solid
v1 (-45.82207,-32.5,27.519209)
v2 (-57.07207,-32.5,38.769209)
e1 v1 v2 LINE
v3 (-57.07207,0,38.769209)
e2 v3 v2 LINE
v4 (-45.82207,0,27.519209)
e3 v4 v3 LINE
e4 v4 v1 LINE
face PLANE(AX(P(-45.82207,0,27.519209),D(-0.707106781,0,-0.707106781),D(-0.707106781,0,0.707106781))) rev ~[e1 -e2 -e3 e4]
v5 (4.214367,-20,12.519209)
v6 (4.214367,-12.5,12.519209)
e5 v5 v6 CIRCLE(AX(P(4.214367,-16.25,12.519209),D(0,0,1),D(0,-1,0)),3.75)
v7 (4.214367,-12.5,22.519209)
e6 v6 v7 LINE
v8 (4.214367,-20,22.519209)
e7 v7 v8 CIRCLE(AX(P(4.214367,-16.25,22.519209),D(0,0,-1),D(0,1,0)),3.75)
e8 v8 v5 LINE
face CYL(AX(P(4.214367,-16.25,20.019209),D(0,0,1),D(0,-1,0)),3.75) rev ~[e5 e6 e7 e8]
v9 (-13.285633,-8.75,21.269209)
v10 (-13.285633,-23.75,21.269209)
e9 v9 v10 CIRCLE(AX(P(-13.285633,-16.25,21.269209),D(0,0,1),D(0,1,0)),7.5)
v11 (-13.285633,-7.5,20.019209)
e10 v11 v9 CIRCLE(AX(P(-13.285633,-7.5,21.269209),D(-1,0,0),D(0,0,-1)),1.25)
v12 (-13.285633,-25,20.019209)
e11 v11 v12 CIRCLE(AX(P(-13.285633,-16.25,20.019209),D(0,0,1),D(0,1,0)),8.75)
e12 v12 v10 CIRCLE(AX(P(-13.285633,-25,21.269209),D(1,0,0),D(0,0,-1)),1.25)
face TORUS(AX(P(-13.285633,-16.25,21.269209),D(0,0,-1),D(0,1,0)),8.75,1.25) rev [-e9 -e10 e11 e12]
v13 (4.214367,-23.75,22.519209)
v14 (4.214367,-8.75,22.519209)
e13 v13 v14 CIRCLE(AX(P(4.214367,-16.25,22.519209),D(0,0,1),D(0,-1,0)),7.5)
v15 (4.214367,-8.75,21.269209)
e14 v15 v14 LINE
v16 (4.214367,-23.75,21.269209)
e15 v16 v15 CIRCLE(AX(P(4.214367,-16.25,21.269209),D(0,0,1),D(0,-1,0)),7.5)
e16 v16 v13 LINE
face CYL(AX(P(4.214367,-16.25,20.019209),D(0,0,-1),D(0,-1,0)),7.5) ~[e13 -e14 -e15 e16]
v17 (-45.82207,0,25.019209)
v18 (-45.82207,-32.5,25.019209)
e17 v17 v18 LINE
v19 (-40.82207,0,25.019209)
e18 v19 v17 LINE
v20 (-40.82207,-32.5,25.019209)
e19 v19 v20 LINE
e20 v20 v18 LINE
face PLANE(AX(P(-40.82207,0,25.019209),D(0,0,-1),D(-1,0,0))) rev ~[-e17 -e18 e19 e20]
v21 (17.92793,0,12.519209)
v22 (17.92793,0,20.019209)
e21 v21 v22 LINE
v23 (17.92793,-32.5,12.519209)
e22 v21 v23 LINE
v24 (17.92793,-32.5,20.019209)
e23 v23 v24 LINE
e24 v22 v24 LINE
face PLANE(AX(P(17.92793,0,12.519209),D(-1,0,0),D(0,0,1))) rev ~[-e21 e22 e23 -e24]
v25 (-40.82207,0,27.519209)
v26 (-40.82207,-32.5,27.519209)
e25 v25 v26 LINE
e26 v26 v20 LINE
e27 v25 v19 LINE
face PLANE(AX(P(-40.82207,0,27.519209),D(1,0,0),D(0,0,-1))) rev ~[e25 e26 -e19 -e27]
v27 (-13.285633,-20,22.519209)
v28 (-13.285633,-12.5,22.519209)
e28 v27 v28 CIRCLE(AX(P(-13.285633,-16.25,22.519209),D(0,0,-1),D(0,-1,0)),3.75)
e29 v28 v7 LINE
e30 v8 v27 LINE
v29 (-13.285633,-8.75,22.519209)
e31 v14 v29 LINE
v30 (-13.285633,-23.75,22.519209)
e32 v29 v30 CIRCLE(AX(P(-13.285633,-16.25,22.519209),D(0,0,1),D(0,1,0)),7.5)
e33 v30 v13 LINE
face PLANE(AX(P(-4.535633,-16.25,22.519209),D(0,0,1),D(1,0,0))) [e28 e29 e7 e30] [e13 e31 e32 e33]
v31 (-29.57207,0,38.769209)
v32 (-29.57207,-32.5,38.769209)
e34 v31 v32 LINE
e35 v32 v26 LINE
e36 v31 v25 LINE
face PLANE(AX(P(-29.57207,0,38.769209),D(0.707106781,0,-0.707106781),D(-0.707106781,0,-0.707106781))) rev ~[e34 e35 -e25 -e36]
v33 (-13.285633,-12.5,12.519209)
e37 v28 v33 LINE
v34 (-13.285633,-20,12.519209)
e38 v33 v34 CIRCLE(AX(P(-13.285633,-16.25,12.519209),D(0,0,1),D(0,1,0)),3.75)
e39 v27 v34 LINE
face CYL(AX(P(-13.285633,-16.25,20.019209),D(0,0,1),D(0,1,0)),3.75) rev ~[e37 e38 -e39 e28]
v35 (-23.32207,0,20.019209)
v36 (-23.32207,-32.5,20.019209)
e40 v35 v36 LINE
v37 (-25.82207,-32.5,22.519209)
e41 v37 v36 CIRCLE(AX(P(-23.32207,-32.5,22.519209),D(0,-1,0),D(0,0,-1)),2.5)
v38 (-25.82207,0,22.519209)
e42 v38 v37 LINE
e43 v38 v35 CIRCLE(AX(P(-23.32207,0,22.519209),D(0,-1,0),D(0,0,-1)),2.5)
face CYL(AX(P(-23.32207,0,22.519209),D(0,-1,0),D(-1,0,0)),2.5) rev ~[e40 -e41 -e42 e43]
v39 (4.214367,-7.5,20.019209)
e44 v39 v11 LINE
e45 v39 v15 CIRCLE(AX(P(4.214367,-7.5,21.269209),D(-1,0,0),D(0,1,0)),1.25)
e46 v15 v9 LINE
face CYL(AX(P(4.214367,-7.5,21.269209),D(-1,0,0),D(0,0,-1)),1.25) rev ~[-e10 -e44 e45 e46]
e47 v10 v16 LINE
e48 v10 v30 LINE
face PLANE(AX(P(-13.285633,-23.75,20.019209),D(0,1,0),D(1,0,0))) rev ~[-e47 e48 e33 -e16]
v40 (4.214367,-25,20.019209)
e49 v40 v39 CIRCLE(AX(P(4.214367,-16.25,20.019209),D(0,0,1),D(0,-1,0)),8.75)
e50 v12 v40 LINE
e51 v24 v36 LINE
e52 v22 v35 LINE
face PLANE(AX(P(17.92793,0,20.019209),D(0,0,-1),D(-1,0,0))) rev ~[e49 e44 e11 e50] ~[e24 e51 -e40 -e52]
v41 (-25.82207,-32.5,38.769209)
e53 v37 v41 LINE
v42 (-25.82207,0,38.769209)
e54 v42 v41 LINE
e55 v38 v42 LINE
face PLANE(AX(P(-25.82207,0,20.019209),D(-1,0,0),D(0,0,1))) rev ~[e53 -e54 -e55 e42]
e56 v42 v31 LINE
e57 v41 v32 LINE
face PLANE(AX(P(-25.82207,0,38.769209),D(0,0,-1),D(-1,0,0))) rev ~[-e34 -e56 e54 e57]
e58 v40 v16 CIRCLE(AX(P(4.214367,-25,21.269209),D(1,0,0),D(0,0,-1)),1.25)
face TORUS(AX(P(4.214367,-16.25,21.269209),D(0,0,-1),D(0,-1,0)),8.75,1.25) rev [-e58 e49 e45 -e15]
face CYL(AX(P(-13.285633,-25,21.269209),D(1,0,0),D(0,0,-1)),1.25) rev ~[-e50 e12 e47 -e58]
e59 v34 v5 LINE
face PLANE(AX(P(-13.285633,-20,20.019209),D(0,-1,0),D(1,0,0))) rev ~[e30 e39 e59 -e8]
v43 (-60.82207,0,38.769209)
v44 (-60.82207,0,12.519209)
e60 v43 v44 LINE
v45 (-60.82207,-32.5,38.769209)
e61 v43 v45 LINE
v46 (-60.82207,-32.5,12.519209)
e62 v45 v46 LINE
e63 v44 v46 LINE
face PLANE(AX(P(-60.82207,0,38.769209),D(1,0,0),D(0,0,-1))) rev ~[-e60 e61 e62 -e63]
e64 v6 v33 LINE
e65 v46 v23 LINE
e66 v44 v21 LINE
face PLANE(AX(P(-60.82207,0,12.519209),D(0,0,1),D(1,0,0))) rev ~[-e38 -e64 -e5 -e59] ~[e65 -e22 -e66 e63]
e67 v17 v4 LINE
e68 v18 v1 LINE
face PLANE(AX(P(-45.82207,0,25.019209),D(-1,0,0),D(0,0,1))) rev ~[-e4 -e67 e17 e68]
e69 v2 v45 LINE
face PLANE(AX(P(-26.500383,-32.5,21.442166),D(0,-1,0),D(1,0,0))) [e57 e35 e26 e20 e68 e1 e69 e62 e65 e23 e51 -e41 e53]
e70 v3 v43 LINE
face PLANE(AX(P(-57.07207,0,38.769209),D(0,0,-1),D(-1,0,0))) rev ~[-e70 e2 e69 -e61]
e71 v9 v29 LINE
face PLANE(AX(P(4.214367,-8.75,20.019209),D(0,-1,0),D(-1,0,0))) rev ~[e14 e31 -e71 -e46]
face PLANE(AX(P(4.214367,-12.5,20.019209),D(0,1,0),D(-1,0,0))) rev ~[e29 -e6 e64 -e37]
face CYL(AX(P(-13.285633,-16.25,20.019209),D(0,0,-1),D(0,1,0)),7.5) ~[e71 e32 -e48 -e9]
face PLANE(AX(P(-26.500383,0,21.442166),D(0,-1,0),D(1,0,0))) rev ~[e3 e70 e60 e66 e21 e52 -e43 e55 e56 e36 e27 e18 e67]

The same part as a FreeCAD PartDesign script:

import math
import FreeCAD as App
import Part
import Sketcher

V = App.Vector


def edges_at(feature, points):
    """Names of the edges that pass closest to the given points."""
    edges = feature.Shape.Edges
    near = lambda p: min(range(len(edges)), key=lambda i: edges[i].distToShape(Part.Vertex(*p))[0])
    return sorted({f"Edge{near(p) + 1}" for p in points})

doc = App.newDocument("Part")
body = doc.addObject("PartDesign::Body", "Body")

# Sketch on XZ plane
sketch1 = body.newObject("Sketcher::SketchObject", "Sketch")
sketch1.AttachmentSupport = (doc.getObject("XZ_Plane"), [""])
sketch1.MapMode = "FlatFace"
sketch1.addGeometry([
    Part.LineSegment(V(-57.1, 38.8, 0), V(-60.8, 38.8, 0)),  # 0
    Part.LineSegment(V(-60.8, 38.8, 0), V(-60.8, 12.5, 0)),  # 1
    Part.LineSegment(V(-60.8, 12.5, 0), V(17.9, 12.5, 0)),  # 2
    Part.LineSegment(V(17.9, 12.5, 0), V(17.9, 20, 0)),  # 3
    Part.LineSegment(V(17.9, 20, 0), V(-25.8, 20, 0)),  # 4
    Part.LineSegment(V(-25.8, 20, 0), V(-25.8, 38.8, 0)),  # 5
    Part.LineSegment(V(-25.8, 38.8, 0), V(-29.6, 38.8, 0)),  # 6
    Part.LineSegment(V(-29.6, 38.8, 0), V(-40.8, 27.5, 0)),  # 7
    Part.LineSegment(V(-40.8, 27.5, 0), V(-40.8, 25, 0)),  # 8
    Part.LineSegment(V(-40.8, 25, 0), V(-45.8, 25, 0)),  # 9
    Part.LineSegment(V(-45.8, 25, 0), V(-45.8, 27.5, 0)),  # 10
    Part.LineSegment(V(-45.8, 27.5, 0), V(-57.1, 38.8, 0)),  # 11
], False)
sketch1.addConstraint([
    Sketcher.Constraint("Coincident", 0, 2, 1, 1),
    Sketcher.Constraint("Coincident", 1, 2, 2, 1),
    Sketcher.Constraint("Coincident", 2, 2, 3, 1),
    Sketcher.Constraint("Coincident", 3, 2, 4, 1),
    Sketcher.Constraint("Coincident", 4, 2, 5, 1),
    Sketcher.Constraint("Coincident", 5, 2, 6, 1),
    Sketcher.Constraint("Coincident", 6, 2, 7, 1),
    Sketcher.Constraint("Coincident", 7, 2, 8, 1),
    Sketcher.Constraint("Coincident", 8, 2, 9, 1),
    Sketcher.Constraint("Coincident", 9, 2, 10, 1),
    Sketcher.Constraint("Coincident", 10, 2, 11, 1),
    Sketcher.Constraint("Coincident", 11, 2, 0, 1),
    Sketcher.Constraint("Horizontal", 0),
    Sketcher.Constraint("Vertical", 1),
    Sketcher.Constraint("Horizontal", 2),
    Sketcher.Constraint("Vertical", 3),
    Sketcher.Constraint("Horizontal", 4),
    Sketcher.Constraint("Vertical", 5),
    Sketcher.Constraint("Horizontal", 6),
    Sketcher.Constraint("Vertical", 8),
    Sketcher.Constraint("Horizontal", 9),
    Sketcher.Constraint("Vertical", 10),
    Sketcher.Constraint("Perpendicular", 7, 11),
    Sketcher.Constraint("Horizontal", 0, 2, 5, 2),
    Sketcher.Constraint("Horizontal", 7, 2, 10, 2),
    Sketcher.Constraint("Equal", 0, 6),
    Sketcher.Constraint("Equal", 7, 11),
    Sketcher.Constraint("DistanceX", 9, 2, 9, 1, 5.0),
    Sketcher.Constraint("DistanceY", 3, 1, 3, 2, 7.5),
    Sketcher.Constraint("DistanceY", 8, 2, 8, 1, 2.5),
    Sketcher.Constraint("DistanceX", 1, 2, 4, 2, 35.0),
    Sketcher.Constraint("DistanceY", 1, 2, 7, 2, 15.0),
    Sketcher.Constraint("DistanceX", 0, 2, 0, 1, 3.75),
    Sketcher.Constraint("DistanceX", 2, 1, 2, 2, 78.75),
    Sketcher.Constraint("DistanceX", 0, 2, -1, 1, 60.82207),
    Sketcher.Constraint("DistanceY", -1, 1, 0, 2, 38.769209),
])
pad1 = body.newObject("PartDesign::Pad", "Pad")
pad1.Profile = sketch1
pad1.Length = 32.5

# Sketch on XY plane
sketch2 = body.newObject("Sketcher::SketchObject", "Sketch001")
sketch2.AttachmentSupport = (doc.getObject("XY_Plane"), [""])
sketch2.MapMode = "FlatFace"
sketch2.AttachmentOffset = App.Placement(V(0, 0, 20.019209), App.Rotation())
sketch2.addGeometry([
    Part.LineSegment(V(4.2, -8.8, 0), V(-13.3, -8.8, 0)),  # 0
    Part.ArcOfCircle(Part.Circle(V(-13.3, -16.2, 0), V(0, 0, 1), 7.5), math.radians(90), math.radians(270)),  # 1
    Part.LineSegment(V(-13.3, -23.8, 0), V(4.2, -23.8, 0)),  # 2
    Part.ArcOfCircle(Part.Circle(V(4.2, -16.2, 0), V(0, 0, 1), 7.5), math.radians(-90), math.radians(90)),  # 3
    Part.LineSegment(V(4.2, -20, 0), V(-13.3, -20, 0)),  # 4
    Part.ArcOfCircle(Part.Circle(V(-13.3, -16.2, 0), V(0, 0, 1), 3.8), math.radians(90), math.radians(270)),  # 5
    Part.LineSegment(V(-13.3, -12.5, 0), V(4.2, -12.5, 0)),  # 6
    Part.ArcOfCircle(Part.Circle(V(4.2, -16.2, 0), V(0, 0, 1), 3.8), math.radians(-90), math.radians(90)),  # 7
], False)
sketch2.addConstraint([
    Sketcher.Constraint("Tangent", 0, 2, 1, 1),
    Sketcher.Constraint("Tangent", 1, 2, 2, 1),
    Sketcher.Constraint("Tangent", 2, 2, 3, 1),
    Sketcher.Constraint("Tangent", 3, 2, 0, 1),
    Sketcher.Constraint("Tangent", 4, 2, 5, 2),
    Sketcher.Constraint("Tangent", 5, 1, 6, 1),
    Sketcher.Constraint("Tangent", 6, 2, 7, 2),
    Sketcher.Constraint("Tangent", 7, 1, 4, 1),
    Sketcher.Constraint("Horizontal", 0),
    Sketcher.Constraint("Horizontal", 2),
    Sketcher.Constraint("Horizontal", 4),
    Sketcher.Constraint("Horizontal", 6),
    Sketcher.Constraint("Coincident", 5, 3, 1, 3),
    Sketcher.Constraint("Vertical", 7, 3, 2, 2),
    Sketcher.Constraint("Radius", 1, 7.5),
    Sketcher.Constraint("Radius", 5, 3.75),
    Sketcher.Constraint("DistanceX", 0, 2, 0, 1, 17.5),
    Sketcher.Constraint("DistanceY", 4, 2, -1, 1, 20.0),
    Sketcher.Constraint("DistanceX", 1, 3, -1, 1, 13.285633),
])
pad2 = body.newObject("PartDesign::Pad", "Pad001")
pad2.Profile = sketch2
pad2.Length = 2.5

# Sketch on XY plane
sketch3 = body.newObject("Sketcher::SketchObject", "Sketch002")
sketch3.AttachmentSupport = (doc.getObject("XY_Plane"), [""])
sketch3.MapMode = "FlatFace"
sketch3.AttachmentOffset = App.Placement(V(0, 0, 20.019209), App.Rotation())
sketch3.addGeometry([
    Part.LineSegment(V(4.2, -12.5, 0), V(-13.3, -12.5, 0)),
    Part.ArcOfCircle(Part.Circle(V(-13.3, -16.2, 0), V(0, 0, 1), 3.8), math.radians(90), math.radians(270)),
    Part.LineSegment(V(-13.3, -20, 0), V(4.2, -20, 0)),
    Part.ArcOfCircle(Part.Circle(V(4.2, -16.2, 0), V(0, 0, 1), 3.8), math.radians(-90), math.radians(90)),
], False)
sketch3.addConstraint([
    Sketcher.Constraint("Tangent", 0, 2, 1, 1),
    Sketcher.Constraint("Tangent", 1, 2, 2, 1),
    Sketcher.Constraint("Tangent", 2, 2, 3, 1),
    Sketcher.Constraint("Tangent", 3, 2, 0, 1),
    Sketcher.Constraint("Horizontal", 0),
    Sketcher.Constraint("Horizontal", 2),
    Sketcher.Constraint("Radius", 1, 3.75),
    Sketcher.Constraint("DistanceX", 0, 2, 0, 1, 17.5),
    Sketcher.Constraint("DistanceY", 1, 2, -1, 1, 20.0),
    Sketcher.Constraint("DistanceX", 1, 3, -1, 1, 13.285633),
])
pocket1 = body.newObject("PartDesign::Pocket", "Pocket")
pocket1.Profile = sketch3
pocket1.Length = 25
doc.recompute()

fillet = body.newObject("PartDesign::Fillet", "Fillet")
fillet.Base = (pocket1, edges_at(pocket1, [(-25.822, -16.25, 20.019)]))
fillet.Radius = 2.5
doc.recompute()

fillet2 = body.newObject("PartDesign::Fillet", "Fillet001")
fillet2.Base = (fillet, edges_at(fillet, [(-4.536, -23.75, 20.019)]))
fillet2.Radius = 1.25

doc.recompute()
